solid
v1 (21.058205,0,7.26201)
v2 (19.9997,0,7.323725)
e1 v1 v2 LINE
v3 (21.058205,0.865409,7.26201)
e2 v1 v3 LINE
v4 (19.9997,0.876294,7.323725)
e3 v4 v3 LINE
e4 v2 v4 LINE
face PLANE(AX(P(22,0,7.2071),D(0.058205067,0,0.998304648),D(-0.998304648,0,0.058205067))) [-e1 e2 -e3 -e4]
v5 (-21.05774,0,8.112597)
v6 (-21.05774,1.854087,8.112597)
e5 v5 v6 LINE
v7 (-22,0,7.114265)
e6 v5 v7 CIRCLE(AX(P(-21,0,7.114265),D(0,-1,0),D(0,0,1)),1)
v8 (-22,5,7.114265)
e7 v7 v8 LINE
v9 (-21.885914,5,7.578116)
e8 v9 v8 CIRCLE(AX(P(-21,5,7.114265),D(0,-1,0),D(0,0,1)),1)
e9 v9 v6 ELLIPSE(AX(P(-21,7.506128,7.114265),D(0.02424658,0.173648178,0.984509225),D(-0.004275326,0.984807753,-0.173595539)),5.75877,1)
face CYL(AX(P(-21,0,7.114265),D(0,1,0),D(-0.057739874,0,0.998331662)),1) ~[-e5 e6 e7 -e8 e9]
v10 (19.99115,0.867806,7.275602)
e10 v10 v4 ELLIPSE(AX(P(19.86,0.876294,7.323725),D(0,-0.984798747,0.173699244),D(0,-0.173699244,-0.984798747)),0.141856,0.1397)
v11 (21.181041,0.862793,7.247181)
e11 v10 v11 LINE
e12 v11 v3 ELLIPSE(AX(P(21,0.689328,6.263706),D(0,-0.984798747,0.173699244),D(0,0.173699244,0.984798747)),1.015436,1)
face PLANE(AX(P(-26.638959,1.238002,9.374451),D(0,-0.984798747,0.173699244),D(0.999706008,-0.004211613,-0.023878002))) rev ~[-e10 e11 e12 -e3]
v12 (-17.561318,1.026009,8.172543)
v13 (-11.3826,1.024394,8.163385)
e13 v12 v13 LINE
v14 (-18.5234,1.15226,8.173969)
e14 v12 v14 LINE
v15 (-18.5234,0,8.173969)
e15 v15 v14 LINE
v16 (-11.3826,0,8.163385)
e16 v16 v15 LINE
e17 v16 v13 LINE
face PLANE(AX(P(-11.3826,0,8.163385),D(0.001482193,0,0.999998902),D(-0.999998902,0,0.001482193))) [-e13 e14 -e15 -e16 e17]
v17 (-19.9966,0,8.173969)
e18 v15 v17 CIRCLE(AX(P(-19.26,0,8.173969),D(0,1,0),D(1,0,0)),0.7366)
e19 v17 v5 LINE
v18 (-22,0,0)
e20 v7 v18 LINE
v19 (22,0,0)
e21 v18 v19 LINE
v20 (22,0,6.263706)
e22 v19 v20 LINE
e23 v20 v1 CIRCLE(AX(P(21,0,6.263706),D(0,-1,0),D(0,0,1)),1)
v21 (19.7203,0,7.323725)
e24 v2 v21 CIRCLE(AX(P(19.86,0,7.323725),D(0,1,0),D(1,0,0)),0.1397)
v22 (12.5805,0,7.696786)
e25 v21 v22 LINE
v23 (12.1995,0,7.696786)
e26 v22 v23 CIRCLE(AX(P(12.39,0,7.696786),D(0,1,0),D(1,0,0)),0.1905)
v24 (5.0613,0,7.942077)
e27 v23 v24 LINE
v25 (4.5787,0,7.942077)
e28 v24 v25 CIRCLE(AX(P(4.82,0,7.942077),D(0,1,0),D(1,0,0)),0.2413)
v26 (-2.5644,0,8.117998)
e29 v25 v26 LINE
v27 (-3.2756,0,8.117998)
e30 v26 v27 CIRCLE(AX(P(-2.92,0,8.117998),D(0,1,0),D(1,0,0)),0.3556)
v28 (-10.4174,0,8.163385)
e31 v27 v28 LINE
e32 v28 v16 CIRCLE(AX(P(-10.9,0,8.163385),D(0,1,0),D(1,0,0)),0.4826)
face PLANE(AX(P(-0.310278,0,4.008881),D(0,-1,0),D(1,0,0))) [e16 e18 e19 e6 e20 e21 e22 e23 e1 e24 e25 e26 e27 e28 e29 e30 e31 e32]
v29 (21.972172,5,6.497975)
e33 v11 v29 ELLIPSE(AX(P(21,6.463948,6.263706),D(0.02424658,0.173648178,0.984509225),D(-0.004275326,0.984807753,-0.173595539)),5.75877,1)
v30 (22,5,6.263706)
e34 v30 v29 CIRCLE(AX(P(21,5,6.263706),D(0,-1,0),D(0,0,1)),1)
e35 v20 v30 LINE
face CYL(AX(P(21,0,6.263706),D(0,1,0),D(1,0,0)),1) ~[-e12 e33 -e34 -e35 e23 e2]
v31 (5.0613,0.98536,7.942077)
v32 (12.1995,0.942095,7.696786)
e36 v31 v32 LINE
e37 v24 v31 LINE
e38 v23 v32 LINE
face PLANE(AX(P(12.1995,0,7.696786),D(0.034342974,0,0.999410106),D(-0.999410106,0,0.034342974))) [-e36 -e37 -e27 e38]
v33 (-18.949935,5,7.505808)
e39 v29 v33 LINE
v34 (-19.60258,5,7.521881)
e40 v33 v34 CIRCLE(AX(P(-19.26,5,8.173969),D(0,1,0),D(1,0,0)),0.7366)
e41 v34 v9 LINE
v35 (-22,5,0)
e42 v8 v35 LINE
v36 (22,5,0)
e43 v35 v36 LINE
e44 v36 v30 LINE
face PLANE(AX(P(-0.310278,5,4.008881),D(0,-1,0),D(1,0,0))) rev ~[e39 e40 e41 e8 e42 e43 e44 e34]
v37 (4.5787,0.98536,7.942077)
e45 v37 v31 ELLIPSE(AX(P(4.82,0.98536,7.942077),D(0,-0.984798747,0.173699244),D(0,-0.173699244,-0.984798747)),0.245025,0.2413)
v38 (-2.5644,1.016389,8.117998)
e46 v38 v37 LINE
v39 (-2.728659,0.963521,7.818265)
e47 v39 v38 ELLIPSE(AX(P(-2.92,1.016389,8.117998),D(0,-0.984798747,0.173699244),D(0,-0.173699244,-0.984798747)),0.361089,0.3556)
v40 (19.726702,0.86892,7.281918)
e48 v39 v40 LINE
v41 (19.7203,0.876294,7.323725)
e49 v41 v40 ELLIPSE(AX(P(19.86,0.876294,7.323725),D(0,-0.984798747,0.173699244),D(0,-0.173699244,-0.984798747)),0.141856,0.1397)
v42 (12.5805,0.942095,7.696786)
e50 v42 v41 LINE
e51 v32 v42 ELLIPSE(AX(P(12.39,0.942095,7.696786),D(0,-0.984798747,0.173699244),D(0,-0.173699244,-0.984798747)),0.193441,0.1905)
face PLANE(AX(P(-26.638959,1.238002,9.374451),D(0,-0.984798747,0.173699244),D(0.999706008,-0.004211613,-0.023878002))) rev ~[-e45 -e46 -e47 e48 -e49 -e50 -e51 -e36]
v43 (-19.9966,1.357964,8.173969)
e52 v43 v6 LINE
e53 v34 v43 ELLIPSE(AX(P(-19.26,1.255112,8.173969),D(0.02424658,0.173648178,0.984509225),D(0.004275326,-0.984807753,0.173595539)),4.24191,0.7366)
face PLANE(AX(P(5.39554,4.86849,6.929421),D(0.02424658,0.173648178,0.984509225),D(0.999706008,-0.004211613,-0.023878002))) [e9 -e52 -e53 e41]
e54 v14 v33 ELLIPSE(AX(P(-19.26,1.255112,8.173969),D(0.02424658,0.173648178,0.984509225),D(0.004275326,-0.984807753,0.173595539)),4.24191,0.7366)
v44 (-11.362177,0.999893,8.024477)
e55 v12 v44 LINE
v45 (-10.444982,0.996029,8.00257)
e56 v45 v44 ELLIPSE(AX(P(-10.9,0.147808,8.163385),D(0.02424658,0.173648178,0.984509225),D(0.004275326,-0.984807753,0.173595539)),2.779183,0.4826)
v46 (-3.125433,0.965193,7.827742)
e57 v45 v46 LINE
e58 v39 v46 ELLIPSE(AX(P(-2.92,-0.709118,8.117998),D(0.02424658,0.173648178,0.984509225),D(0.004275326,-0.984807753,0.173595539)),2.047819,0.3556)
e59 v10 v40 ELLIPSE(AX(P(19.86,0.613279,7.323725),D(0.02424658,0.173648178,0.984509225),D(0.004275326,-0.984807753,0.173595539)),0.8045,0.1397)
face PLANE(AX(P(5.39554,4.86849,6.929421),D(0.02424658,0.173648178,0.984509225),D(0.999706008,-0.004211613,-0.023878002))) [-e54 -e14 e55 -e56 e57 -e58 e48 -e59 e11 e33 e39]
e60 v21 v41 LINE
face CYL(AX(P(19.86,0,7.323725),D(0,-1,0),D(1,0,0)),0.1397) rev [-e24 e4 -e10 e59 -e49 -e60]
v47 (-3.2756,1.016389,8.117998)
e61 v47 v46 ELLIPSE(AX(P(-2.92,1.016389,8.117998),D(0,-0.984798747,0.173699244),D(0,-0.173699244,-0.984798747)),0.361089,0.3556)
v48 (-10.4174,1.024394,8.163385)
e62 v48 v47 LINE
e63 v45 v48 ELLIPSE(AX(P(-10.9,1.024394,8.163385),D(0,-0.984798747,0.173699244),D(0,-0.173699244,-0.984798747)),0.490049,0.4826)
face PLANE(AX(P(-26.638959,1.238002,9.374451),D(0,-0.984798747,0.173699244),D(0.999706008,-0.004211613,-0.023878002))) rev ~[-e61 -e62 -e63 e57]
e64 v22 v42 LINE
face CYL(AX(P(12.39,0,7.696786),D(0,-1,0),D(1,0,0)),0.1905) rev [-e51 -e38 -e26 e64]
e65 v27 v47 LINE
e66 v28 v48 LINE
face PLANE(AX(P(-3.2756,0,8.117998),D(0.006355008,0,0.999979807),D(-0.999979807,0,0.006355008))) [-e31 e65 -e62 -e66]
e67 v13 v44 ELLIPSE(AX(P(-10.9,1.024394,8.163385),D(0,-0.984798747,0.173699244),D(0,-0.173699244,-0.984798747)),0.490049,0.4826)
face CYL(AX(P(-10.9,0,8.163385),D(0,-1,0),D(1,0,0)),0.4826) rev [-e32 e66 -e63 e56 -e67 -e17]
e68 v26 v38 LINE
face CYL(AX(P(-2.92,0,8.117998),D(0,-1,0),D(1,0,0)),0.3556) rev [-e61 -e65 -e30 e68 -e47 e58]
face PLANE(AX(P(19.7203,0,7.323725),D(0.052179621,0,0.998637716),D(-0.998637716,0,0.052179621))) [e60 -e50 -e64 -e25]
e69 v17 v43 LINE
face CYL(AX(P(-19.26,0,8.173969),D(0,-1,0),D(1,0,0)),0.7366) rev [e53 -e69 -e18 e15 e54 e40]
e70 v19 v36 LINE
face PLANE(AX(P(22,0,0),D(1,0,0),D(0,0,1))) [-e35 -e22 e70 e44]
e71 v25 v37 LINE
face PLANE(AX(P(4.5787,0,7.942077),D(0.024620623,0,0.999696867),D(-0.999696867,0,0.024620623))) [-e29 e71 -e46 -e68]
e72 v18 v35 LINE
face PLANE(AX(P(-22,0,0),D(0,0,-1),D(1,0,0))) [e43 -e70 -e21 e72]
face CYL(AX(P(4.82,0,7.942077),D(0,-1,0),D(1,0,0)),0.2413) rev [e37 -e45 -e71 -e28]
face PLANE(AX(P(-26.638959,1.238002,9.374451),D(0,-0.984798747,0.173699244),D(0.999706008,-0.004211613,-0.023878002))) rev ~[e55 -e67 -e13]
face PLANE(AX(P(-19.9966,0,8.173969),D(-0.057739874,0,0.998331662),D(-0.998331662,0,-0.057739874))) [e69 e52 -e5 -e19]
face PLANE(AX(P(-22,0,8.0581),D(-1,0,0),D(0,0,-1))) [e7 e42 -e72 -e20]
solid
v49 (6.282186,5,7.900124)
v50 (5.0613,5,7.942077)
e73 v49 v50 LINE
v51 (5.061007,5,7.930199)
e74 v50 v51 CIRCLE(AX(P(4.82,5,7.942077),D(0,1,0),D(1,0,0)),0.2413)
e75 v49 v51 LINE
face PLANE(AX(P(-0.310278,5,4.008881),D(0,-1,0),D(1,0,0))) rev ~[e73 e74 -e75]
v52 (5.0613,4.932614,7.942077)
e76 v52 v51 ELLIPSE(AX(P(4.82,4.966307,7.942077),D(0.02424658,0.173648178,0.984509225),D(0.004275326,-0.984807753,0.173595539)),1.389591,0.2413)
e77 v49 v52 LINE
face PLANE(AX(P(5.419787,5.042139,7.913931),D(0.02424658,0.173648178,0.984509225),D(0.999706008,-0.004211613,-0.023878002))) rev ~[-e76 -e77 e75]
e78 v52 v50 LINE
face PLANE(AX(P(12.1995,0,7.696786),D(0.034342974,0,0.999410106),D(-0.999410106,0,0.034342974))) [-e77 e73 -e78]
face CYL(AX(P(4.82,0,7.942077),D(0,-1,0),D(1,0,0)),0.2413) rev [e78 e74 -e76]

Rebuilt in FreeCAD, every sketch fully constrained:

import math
import FreeCAD as App
import Part
import Sketcher
from FreeCAD import Vector
Q = App.Units.Quantity


def edges_at(feature, points):
    """Names of the edges that pass closest to the given points."""
    edges = feature.Shape.Edges
    near = lambda p: min(range(len(edges)), key=lambda i: edges[i].distToShape(Part.Vertex(*p))[0])
    return sorted({f"Edge{near(p) + 1}" for p in points})

doc = App.newDocument("Part")
body = doc.addObject("PartDesign::Body", "Body")
body.AllowCompound = True

# Sketch on XZ plane
sketch1 = body.newObject("Sketcher::SketchObject", "Sketch")
sketch1.AttachmentSupport = (doc.getObject("XZ_Plane"), [""])
sketch1.MapMode = "FlatFace"
sketch1.addGeometry([
    Part.LineSegment(Vector(-22, 0, 0), Vector(22, 0, 0)),  # 0
    Part.LineSegment(Vector(22, 0, 0), Vector(22, 7.21, 0)),  # 1
    Part.LineSegment(Vector(22, 7.21, 0), Vector(20, 7.32, 0)),  # 2
    Part.ArcOfCircle(Part.Circle(Vector(19.86, 7.32, 0), Vector(0, 0, 1), 0.14), math.radians(180), math.radians(360)),  # 3
    Part.LineSegment(Vector(19.72, 7.32, 0), Vector(12.58, 7.7, 0)),  # 4
    Part.ArcOfCircle(Part.Circle(Vector(12.39, 7.7, 0), Vector(0, 0, 1), 0.19), math.radians(180), math.radians(360)),  # 5
    Part.LineSegment(Vector(12.2, 7.7, 0), Vector(5.06, 7.94, 0)),  # 6
    Part.ArcOfCircle(Part.Circle(Vector(4.82, 7.94, 0), Vector(0, 0, 1), 0.24), math.radians(180), math.radians(360)),  # 7
    Part.LineSegment(Vector(4.58, 7.94, 0), Vector(-2.56, 8.12, 0)),  # 8
    Part.ArcOfCircle(Part.Circle(Vector(-2.92, 8.12, 0), Vector(0, 0, 1), 0.36), math.radians(180), math.radians(360)),  # 9
    Part.LineSegment(Vector(-3.28, 8.12, 0), Vector(-10.42, 8.16, 0)),  # 10
    Part.ArcOfCircle(Part.Circle(Vector(-10.9, 8.16, 0), Vector(0, 0, 1), 0.48), math.radians(180), math.radians(360)),  # 11
    Part.LineSegment(Vector(-11.38, 8.16, 0), Vector(-18.52, 8.17, 0)),  # 12
    Part.ArcOfCircle(Part.Circle(Vector(-19.26, 8.17, 0), Vector(0, 0, 1), 0.74), math.radians(180), math.radians(360)),  # 13
    Part.LineSegment(Vector(-20, 8.17, 0), Vector(-22, 8.06, 0)),  # 14
    Part.LineSegment(Vector(-22, 8.06, 0), Vector(-22, 0, 0)),  # 15
], False)
sketch1.addConstraint([
    Sketcher.Constraint("Coincident", 0, 2, 1, 1),
    Sketcher.Constraint("Coincident", 1, 2, 2, 1),
    Sketcher.Constraint("Coincident", 2, 2, 3, 2),
    Sketcher.Constraint("Coincident", 3, 1, 4, 1),
    Sketcher.Constraint("Coincident", 4, 2, 5, 2),
    Sketcher.Constraint("Coincident", 5, 1, 6, 1),
    Sketcher.Constraint("Coincident", 6, 2, 7, 2),
    Sketcher.Constraint("Coincident", 7, 1, 8, 1),
    Sketcher.Constraint("Coincident", 8, 2, 9, 2),
    Sketcher.Constraint("Coincident", 9, 1, 10, 1),
    Sketcher.Constraint("Coincident", 10, 2, 11, 2),
    Sketcher.Constraint("Coincident", 11, 1, 12, 1),
    Sketcher.Constraint("Coincident", 12, 2, 13, 2),
    Sketcher.Constraint("Coincident", 13, 1, 14, 1),
    Sketcher.Constraint("Coincident", 14, 2, 15, 1),
    Sketcher.Constraint("Coincident", 15, 2, 0, 1),
    Sketcher.Constraint("Horizontal", 0),
    Sketcher.Constraint("Vertical", 1),
    Sketcher.Constraint("Vertical", 15),
    Sketcher.Constraint("Symmetric", 0, 2, 15, 2, -1, 1),
    Sketcher.Constraint("Horizontal", 3, 3, 2, 2),
    Sketcher.Constraint("Horizontal", 2, 2, 3, 1),
    Sketcher.Constraint("Horizontal", 5, 3, 4, 2),
    Sketcher.Constraint("Horizontal", 4, 2, 5, 1),
    Sketcher.Constraint("Horizontal", 7, 3, 6, 2),
    Sketcher.Constraint("Horizontal", 6, 2, 7, 1),
    Sketcher.Constraint("Horizontal", 9, 3, 8, 2),
    Sketcher.Constraint("Horizontal", 8, 2, 9, 1),
    Sketcher.Constraint("Horizontal", 11, 3, 10, 2),
    Sketcher.Constraint("Horizontal", 10, 2, 11, 1),
    Sketcher.Constraint("Horizontal", 13, 3, 12, 2),
    Sketcher.Constraint("Horizontal", 12, 2, 13, 1),
    Sketcher.Constraint("Radius", 9, Q("0.014 in")),
    Sketcher.Constraint("Radius", 11, Q("0.019 in")),
    Sketcher.Constraint("Radius", 13, Q("0.029 in")),
    Sketcher.Constraint("Radius", 3, Q("0.0055 in")),
    Sketcher.Constraint("Radius", 5, Q("0.0075 in")),
    Sketcher.Constraint("Radius", 7, Q("0.0095 in")),
    Sketcher.Constraint("DistanceX", 0, 1, 0, 2, Q("44 mm")),
    Sketcher.Constraint("DistanceY", 1, 1, 1, 2, Q("7.2071 mm")),
    Sketcher.Constraint("DistanceY", 15, 2, 15, 1, Q("8.0581 mm")),
    Sketcher.Constraint("DistanceX", -1, 1, 3, 3, Q("19.86 mm")),
    Sketcher.Constraint("DistanceX", -1, 1, 5, 3, Q("12.39 mm")),
    Sketcher.Constraint("DistanceX", -1, 1, 7, 3, Q("4.82 mm")),
    Sketcher.Constraint("DistanceX", 9, 3, -1, 1, Q("2.92 mm")),
    Sketcher.Constraint("DistanceY", -1, 1, 9, 3, Q("8.117998 mm")),
    Sketcher.Constraint("DistanceX", 11, 3, -1, 1, Q("10.9 mm")),
    Sketcher.Constraint("DistanceX", 13, 3, -1, 1, Q("19.26 mm")),
    Sketcher.Constraint("DistanceY", 5, 3, 11, 3, Q("0.4666 mm")),
    Sketcher.Constraint("Distance", 4, Q("7.14954 mm")),
    Sketcher.Constraint("DistanceY", -1, 1, 13, 3, Q("8.173969 mm")),
    Sketcher.Constraint("DistanceY", 5, 3, 7, 3, Q("0.245292 mm")),
    Sketcher.Constraint("DistanceY", 7, 3, 9, 3, Q("0.175921 mm")),
])
pad1 = body.newObject("PartDesign::Pad", "Pad")
pad1.Profile = sketch1
pad1.Length = 5
pad1.Reversed = True
doc.recompute()

fillet = body.newObject("PartDesign::Fillet", "Fillet")
fillet.Base = (pad1, edges_at(pad1, [(22, 2.5, 7.207), (-22, 2.5, 8.058)]))
fillet.Radius = 1

# Sketch on an angled plane
sketch2 = body.newObject("Sketcher::SketchObject", "Sketch001")
sketch2.Placement = App.Placement(Vector(0.213329, 1.52781, 8.662014), App.Rotation(Vector(0.999706008, -0.004211613, -0.023878002), Vector(0, 0.984798747, -0.173699244), Vector(0.02424658, 0.173648178, 0.984509225), "ZXY"))
sketch2.addGeometry([
    Part.LineSegment(Vector(-27, 8, 0), Vector(-27, 0, 0)),
    Part.LineSegment(Vector(-27, 0, 0), Vector(37, 0, 0)),
    Part.LineSegment(Vector(37, 0, 0), Vector(37, 8, 0)),
    Part.LineSegment(Vector(37, 8, 0), Vector(-27, 8, 0)),
], False)
sketch2.addConstraint([
    Sketcher.Constraint("Coincident", 0, 2, 1, 1),
    Sketcher.Constraint("Coincident", 1, 2, 2, 1),
    Sketcher.Constraint("Coincident", 2, 2, 3, 1),
    Sketcher.Constraint("Coincident", 3, 2, 0, 1),
    Sketcher.Constraint("Vertical", 0),
    Sketcher.Constraint("Horizontal", 1),
    Sketcher.Constraint("Vertical", 2),
    Sketcher.Constraint("Horizontal", 3),
    Sketcher.Constraint("DistanceY", 0, 2, 0, 1, Q("8 mm")),
    Sketcher.Constraint("DistanceX", 1, 1, 1, 2, Q("64.136348 mm")),
    Sketcher.Constraint("DistanceY", 0, 2, -1, 1, Q("0.409152 mm")),
    Sketcher.Constraint("DistanceX", 0, 2, -1, 1, Q("26.860185 mm")),
])
pocket1 = body.newObject("PartDesign::Pocket", "Pocket")
pocket1.Profile = sketch2
pocket1.Length = 1

doc.recompute()
